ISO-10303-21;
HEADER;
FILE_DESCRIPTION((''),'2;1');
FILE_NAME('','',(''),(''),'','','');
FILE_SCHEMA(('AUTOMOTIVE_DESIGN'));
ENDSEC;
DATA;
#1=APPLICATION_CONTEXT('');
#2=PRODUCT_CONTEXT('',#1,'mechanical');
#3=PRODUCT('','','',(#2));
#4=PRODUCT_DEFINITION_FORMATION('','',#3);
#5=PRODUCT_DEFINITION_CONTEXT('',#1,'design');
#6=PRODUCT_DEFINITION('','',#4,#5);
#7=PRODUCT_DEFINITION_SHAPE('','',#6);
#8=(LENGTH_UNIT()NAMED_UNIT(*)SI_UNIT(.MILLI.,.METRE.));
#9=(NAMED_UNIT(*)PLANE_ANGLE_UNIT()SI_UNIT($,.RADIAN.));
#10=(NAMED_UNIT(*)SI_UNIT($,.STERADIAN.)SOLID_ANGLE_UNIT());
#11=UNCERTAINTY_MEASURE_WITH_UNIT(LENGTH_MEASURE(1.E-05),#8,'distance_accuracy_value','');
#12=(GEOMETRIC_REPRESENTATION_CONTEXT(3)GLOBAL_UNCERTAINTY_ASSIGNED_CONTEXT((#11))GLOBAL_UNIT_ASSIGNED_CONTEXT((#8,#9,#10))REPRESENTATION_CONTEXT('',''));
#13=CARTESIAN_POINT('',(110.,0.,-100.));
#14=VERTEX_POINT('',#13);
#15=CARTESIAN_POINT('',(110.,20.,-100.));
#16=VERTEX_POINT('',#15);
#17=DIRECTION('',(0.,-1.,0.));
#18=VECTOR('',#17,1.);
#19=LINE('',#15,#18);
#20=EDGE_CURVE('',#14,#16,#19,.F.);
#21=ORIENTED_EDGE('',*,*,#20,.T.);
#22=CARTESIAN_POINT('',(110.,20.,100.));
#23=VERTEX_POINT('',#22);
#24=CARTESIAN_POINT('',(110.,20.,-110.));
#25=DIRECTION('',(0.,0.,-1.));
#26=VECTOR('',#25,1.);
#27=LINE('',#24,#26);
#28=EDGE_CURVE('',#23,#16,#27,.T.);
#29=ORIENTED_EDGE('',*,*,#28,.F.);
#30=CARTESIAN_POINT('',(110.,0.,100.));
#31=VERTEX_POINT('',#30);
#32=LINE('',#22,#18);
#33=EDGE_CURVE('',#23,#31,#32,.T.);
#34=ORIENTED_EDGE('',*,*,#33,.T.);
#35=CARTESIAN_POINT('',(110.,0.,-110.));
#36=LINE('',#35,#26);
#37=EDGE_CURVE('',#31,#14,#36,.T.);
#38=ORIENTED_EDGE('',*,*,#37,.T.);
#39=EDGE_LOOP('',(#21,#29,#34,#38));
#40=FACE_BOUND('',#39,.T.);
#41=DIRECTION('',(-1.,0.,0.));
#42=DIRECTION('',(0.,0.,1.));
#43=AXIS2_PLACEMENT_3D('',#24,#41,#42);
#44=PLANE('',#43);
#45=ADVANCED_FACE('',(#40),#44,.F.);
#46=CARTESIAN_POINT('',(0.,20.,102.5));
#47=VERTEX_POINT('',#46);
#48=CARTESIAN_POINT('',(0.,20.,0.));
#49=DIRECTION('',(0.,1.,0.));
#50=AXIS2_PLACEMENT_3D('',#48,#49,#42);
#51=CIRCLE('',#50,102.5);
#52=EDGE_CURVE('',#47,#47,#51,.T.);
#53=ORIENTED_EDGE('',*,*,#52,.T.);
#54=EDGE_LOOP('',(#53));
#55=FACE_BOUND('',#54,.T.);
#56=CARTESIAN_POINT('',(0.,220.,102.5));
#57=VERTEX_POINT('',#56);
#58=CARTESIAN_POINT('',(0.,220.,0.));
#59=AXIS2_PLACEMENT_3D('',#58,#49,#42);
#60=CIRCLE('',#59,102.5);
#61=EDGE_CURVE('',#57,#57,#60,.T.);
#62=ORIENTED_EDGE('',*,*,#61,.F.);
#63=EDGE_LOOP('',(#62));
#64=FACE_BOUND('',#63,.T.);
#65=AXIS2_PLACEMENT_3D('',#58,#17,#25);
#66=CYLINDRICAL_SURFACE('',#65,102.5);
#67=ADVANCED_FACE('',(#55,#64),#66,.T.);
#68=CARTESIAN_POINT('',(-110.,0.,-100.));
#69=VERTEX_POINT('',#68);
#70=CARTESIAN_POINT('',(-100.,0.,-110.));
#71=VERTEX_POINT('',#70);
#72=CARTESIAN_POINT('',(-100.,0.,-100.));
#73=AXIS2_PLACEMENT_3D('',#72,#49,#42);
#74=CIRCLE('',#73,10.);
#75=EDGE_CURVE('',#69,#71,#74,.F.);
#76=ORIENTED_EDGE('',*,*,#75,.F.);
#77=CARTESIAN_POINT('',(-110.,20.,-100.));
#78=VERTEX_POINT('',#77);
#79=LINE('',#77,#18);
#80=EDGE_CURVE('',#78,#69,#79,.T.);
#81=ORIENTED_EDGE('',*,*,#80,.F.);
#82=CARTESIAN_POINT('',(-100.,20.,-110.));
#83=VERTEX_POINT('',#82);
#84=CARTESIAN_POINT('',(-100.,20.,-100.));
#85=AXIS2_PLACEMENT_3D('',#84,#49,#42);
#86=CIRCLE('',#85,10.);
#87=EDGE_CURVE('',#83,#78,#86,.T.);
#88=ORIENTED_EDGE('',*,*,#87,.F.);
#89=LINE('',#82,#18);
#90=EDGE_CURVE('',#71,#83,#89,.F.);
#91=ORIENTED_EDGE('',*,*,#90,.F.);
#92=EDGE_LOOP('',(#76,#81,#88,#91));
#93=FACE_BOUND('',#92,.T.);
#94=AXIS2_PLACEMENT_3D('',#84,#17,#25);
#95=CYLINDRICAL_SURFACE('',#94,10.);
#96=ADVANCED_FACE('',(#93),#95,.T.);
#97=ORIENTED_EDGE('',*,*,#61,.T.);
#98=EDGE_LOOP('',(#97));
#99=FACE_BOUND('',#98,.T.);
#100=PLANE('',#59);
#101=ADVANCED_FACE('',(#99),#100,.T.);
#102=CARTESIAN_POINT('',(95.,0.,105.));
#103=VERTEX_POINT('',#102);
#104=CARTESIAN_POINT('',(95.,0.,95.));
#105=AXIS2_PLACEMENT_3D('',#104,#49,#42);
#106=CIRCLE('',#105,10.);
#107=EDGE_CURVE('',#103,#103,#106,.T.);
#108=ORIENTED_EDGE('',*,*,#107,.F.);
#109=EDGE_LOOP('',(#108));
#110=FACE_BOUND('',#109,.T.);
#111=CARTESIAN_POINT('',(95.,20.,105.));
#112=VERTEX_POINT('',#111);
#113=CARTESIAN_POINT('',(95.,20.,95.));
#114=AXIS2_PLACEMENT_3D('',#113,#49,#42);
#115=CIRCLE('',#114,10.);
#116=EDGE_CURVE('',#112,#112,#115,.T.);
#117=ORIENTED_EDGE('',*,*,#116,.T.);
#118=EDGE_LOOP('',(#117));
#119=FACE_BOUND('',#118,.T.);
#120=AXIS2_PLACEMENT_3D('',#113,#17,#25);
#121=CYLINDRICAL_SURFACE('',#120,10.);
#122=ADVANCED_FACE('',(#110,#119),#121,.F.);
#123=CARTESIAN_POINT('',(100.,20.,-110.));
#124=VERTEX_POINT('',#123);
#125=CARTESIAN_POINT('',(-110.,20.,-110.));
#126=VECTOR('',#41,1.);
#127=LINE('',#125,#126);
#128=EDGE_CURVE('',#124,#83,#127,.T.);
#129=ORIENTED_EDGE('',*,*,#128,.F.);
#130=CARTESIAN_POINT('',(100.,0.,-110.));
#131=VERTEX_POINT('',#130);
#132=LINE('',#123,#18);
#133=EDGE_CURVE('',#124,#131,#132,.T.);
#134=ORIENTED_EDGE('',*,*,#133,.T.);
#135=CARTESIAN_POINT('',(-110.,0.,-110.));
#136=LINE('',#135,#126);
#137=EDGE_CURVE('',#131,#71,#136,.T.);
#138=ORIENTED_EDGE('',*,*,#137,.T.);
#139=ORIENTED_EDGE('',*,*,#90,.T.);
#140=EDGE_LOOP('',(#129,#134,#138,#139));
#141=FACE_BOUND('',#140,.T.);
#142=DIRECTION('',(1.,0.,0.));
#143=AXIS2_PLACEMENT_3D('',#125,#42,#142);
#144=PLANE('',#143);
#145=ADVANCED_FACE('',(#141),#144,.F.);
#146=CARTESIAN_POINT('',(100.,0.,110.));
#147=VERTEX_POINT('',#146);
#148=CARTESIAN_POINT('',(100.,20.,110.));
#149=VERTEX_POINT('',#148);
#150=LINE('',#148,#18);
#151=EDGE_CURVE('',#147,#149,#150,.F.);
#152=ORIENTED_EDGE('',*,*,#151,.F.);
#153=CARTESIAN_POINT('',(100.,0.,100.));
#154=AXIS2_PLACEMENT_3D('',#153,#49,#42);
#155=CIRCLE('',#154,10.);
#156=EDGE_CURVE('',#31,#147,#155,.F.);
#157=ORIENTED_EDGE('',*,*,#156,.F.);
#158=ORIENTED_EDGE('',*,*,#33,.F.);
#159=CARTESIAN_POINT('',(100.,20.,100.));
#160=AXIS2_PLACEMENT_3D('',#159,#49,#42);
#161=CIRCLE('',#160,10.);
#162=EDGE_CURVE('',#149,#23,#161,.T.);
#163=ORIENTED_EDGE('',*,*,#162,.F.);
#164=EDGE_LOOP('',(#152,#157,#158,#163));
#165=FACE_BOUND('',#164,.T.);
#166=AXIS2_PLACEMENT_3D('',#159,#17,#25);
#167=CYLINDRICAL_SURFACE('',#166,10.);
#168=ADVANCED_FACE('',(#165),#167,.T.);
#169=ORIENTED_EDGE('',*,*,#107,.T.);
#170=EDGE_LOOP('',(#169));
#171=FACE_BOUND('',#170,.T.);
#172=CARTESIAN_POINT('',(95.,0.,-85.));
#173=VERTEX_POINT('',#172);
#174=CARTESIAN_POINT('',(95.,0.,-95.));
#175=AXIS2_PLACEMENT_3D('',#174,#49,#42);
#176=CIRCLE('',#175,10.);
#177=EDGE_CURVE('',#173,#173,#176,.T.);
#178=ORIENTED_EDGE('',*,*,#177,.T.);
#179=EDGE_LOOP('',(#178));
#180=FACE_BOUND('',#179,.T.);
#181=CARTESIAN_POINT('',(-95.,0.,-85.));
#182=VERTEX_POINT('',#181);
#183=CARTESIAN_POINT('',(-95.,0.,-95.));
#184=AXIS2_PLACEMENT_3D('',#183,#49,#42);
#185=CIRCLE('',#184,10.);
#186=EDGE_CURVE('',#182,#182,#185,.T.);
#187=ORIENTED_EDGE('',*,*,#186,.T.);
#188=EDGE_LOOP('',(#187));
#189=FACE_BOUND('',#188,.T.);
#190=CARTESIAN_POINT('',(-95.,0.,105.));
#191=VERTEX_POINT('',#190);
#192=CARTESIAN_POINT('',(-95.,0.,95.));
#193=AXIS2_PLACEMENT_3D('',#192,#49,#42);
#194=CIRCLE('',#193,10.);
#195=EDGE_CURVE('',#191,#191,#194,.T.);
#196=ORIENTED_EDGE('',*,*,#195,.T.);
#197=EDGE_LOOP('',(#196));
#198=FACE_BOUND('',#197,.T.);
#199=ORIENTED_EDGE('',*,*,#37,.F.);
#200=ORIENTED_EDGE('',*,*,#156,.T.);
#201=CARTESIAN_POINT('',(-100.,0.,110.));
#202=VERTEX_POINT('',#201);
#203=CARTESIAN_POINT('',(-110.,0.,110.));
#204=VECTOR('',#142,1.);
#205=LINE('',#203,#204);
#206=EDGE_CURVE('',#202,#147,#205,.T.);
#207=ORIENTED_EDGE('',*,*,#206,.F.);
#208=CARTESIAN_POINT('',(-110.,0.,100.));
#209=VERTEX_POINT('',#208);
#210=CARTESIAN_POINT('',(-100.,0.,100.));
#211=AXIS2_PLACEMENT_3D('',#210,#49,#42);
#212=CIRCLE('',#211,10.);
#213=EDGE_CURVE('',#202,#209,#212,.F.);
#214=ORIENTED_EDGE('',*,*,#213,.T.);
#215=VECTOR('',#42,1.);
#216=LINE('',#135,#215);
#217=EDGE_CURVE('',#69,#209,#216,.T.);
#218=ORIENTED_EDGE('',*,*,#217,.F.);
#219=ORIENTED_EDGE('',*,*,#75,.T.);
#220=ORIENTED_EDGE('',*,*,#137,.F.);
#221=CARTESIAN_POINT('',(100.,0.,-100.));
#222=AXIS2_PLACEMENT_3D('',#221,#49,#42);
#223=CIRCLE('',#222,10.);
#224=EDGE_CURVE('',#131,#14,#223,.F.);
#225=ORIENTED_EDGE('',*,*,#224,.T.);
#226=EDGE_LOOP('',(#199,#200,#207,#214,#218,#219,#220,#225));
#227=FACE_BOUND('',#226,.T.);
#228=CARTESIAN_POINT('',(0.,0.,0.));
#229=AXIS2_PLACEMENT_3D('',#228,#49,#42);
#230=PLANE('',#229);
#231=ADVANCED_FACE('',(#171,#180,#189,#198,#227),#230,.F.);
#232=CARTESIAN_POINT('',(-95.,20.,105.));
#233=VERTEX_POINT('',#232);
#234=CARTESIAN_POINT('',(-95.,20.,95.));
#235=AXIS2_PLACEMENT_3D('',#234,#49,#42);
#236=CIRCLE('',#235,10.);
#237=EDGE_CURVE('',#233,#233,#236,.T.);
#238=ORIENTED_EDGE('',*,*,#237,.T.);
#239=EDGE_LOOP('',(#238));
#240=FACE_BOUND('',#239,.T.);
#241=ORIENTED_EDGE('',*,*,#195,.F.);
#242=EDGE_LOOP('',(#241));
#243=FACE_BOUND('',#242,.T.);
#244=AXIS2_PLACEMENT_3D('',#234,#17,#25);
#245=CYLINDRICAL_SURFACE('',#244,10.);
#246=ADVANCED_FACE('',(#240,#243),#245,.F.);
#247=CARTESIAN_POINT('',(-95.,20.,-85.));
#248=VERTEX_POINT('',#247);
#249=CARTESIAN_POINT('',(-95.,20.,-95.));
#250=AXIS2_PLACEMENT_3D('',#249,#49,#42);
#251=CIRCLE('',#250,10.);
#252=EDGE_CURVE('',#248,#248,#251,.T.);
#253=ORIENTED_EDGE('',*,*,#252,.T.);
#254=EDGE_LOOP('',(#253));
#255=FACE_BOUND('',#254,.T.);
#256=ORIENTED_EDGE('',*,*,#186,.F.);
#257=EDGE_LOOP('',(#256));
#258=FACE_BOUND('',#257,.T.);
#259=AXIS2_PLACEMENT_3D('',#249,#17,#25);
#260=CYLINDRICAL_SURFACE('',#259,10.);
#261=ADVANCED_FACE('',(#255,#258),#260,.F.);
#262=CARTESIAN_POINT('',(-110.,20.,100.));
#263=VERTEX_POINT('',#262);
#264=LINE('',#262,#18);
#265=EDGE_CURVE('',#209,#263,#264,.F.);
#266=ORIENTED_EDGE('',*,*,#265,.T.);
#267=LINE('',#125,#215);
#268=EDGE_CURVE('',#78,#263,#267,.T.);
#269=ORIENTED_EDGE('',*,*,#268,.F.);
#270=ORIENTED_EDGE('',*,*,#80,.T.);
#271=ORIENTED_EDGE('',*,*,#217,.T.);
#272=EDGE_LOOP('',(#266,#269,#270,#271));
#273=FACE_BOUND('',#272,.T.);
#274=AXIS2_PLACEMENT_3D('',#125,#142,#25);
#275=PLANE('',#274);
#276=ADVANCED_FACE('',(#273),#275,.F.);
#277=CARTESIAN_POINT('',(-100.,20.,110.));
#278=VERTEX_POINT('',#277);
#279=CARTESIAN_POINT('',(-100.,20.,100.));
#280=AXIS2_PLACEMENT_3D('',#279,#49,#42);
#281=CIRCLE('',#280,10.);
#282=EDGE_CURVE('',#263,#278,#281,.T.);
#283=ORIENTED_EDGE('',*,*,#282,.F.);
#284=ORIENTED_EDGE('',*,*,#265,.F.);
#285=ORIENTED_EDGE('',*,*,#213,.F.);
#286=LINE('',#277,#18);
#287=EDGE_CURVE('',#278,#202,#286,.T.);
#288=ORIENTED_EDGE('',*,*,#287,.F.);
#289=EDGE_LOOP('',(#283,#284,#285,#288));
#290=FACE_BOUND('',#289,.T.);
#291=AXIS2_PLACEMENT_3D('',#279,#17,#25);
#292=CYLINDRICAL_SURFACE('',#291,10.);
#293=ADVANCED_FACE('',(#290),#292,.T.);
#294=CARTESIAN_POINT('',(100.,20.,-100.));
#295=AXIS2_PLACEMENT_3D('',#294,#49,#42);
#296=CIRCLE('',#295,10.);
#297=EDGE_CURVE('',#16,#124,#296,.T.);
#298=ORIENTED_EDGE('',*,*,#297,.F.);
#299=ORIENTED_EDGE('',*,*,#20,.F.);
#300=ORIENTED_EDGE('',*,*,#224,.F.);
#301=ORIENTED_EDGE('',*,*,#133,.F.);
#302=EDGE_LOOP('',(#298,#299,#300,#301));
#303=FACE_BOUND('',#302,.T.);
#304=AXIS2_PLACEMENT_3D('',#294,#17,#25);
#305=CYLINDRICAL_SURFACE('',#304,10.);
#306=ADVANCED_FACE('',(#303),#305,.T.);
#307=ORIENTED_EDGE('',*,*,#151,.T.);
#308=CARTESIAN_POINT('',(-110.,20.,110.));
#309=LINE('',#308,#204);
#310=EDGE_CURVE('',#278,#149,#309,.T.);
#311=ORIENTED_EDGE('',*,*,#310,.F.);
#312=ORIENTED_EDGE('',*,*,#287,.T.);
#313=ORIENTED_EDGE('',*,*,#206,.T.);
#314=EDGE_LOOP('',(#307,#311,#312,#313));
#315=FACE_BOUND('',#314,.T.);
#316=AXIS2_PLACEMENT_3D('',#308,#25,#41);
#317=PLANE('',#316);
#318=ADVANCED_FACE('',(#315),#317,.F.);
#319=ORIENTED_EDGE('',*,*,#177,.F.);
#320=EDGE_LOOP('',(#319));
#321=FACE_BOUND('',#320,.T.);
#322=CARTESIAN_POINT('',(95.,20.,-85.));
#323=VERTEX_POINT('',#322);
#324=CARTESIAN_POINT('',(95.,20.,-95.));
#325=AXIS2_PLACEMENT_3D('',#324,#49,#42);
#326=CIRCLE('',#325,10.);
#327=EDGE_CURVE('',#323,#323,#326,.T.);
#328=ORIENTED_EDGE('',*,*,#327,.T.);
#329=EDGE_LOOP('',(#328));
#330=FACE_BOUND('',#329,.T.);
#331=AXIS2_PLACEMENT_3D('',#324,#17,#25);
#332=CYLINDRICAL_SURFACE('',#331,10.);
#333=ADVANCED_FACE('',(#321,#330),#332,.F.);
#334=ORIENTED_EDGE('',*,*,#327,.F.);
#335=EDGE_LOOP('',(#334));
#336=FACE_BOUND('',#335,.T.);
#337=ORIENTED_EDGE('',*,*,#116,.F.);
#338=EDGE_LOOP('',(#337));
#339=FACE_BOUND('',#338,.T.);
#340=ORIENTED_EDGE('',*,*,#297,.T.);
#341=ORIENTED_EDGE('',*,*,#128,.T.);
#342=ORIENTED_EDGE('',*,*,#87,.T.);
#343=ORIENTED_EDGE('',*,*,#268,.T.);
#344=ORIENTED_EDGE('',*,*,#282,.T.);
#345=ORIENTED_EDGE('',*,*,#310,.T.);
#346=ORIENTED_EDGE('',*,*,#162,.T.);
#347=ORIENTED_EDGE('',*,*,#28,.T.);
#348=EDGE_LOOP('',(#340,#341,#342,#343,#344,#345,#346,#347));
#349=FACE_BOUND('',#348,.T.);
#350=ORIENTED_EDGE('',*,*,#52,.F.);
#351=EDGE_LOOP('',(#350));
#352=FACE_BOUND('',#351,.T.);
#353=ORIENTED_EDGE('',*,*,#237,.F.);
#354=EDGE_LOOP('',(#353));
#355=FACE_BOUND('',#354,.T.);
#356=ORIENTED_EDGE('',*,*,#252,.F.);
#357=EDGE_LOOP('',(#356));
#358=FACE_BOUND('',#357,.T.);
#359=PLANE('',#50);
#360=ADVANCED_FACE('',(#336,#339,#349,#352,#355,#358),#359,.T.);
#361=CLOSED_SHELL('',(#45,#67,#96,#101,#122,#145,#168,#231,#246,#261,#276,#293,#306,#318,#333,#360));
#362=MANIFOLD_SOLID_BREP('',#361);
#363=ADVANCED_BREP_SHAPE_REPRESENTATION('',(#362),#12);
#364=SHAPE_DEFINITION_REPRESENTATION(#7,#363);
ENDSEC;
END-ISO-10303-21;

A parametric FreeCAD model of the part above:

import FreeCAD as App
import Part
import Sketcher
Q = App.Units.Quantity


def edges_at(feature, points):
    """Names of the edges that pass closest to the given points."""
    edges = feature.Shape.Edges
    near = lambda p: min(range(len(edges)), key=lambda i: edges[i].distToShape(Part.Vertex(*p))[0])
    return sorted({f"Edge{near(p) + 1}" for p in points})

doc = App.newDocument("Part")
body = doc.addObject("PartDesign::Body", "Body")

sketch1 = doc.addObject("Sketcher::SketchObject", "Sketch")
body.addObject(sketch1)
sketch1.AttachmentSupport = (doc.XZ_Plane, [""])
sketch1.MapMode = "FlatFace"
sketch1.addGeometry(Part.LineSegment(App.Vector(-110, -110, 0), App.Vector(-110, 110, 0)), False)
sketch1.addGeometry(Part.LineSegment(App.Vector(-110, 110, 0), App.Vector(110, 110, 0)), False)
sketch1.addGeometry(Part.LineSegment(App.Vector(110, 110, 0), App.Vector(110, -110, 0)), False)
sketch1.addGeometry(Part.LineSegment(App.Vector(110, -110, 0), App.Vector(-110, -110, 0)), False)
sketch1.addGeometry(Part.Circle(App.Vector(-95, 95, 0), App.Vector(0, 0, 1), 10), False)
sketch1.addGeometry(Part.Circle(App.Vector(95, 95, 0), App.Vector(0, 0, 1), 10), False)
sketch1.addGeometry(Part.Circle(App.Vector(-95, -95, 0), App.Vector(0, 0, 1), 10), False)
sketch1.addGeometry(Part.Circle(App.Vector(95, -95, 0), App.Vector(0, 0, 1), 10), False)
sketch1.addConstraint(Sketcher.Constraint("Coincident", 0, 2, 1, 1))
sketch1.addConstraint(Sketcher.Constraint("Coincident", 1, 2, 2, 1))
sketch1.addConstraint(Sketcher.Constraint("Coincident", 2, 2, 3, 1))
sketch1.addConstraint(Sketcher.Constraint("Coincident", 3, 2, 0, 1))
sketch1.addConstraint(Sketcher.Constraint("Vertical", 0))
sketch1.addConstraint(Sketcher.Constraint("Horizontal", 1))
sketch1.addConstraint(Sketcher.Constraint("Vertical", 2))
sketch1.addConstraint(Sketcher.Constraint("Horizontal", 3))
sketch1.addConstraint(Sketcher.Constraint("Equal", 4, 5))
sketch1.addConstraint(Sketcher.Constraint("Equal", 5, 6))
sketch1.addConstraint(Sketcher.Constraint("Equal", 6, 7))
sketch1.addConstraint(Sketcher.Constraint("Symmetric", 5, 3, 6, 3, -1, 1))
sketch1.addConstraint(Sketcher.Constraint("Symmetric", 4, 3, 7, 3, -1, 1))
sketch1.addConstraint(Sketcher.Constraint("Symmetric", 0, 2, 2, 2, -1, 1))
sketch1.addConstraint(Sketcher.Constraint("Symmetric", 4, 3, 5, 3, -2))
sketch1.addConstraint(Sketcher.Constraint("Equal", 3, 0))
sketch1.addConstraint(Sketcher.Constraint("Diameter", 4, Q("20 mm")))
sketch1.addConstraint(Sketcher.Constraint("DistanceX", 1, 1, 1, 2, Q("220 mm")))
sketch1.addConstraint(Sketcher.Constraint("DistanceX", 4, 3, -1, 1, Q("95 mm")))
sketch1.addConstraint(Sketcher.Constraint("DistanceY", -1, 1, 4, 3, Q("95 mm")))
pad1 = doc.addObject("PartDesign::Pad", "Pad")
body.addObject(pad1)
pad1.Profile = sketch1
pad1.Length = 20
pad1.Reversed = True
doc.recompute()

fillet = doc.addObject("PartDesign::Fillet", "Fillet")
body.addObject(fillet)
fillet.Base = (pad1, edges_at(pad1, [
    (110, 10, 110),
    (-110, 10, 110),
    (-110, 10, -110),
    (110, 10, -110),
]))
fillet.Radius = 10

sketch2 = doc.addObject("Sketcher::SketchObject", "Sketch001")
body.addObject(sketch2)
sketch2.AttachmentSupport = (doc.XZ_Plane, [""])
sketch2.MapMode = "FlatFace"
sketch2.AttachmentOffset = App.Placement(App.Vector(0, 0, -20), App.Rotation())
sketch2.addGeometry(Part.Circle(App.Vector(0, 0, 0), App.Vector(0, 0, 1), 102), False)
sketch2.addConstraint(Sketcher.Constraint("Coincident", 0, 3, -1, 1))
sketch2.addConstraint(Sketcher.Constraint("Diameter", 0, Q("205 mm")))
pad2 = doc.addObject("PartDesign::Pad", "Pad001")
body.addObject(pad2)
pad2.Profile = sketch2
pad2.Length = 200
pad2.Reversed = True

doc.recompute()
